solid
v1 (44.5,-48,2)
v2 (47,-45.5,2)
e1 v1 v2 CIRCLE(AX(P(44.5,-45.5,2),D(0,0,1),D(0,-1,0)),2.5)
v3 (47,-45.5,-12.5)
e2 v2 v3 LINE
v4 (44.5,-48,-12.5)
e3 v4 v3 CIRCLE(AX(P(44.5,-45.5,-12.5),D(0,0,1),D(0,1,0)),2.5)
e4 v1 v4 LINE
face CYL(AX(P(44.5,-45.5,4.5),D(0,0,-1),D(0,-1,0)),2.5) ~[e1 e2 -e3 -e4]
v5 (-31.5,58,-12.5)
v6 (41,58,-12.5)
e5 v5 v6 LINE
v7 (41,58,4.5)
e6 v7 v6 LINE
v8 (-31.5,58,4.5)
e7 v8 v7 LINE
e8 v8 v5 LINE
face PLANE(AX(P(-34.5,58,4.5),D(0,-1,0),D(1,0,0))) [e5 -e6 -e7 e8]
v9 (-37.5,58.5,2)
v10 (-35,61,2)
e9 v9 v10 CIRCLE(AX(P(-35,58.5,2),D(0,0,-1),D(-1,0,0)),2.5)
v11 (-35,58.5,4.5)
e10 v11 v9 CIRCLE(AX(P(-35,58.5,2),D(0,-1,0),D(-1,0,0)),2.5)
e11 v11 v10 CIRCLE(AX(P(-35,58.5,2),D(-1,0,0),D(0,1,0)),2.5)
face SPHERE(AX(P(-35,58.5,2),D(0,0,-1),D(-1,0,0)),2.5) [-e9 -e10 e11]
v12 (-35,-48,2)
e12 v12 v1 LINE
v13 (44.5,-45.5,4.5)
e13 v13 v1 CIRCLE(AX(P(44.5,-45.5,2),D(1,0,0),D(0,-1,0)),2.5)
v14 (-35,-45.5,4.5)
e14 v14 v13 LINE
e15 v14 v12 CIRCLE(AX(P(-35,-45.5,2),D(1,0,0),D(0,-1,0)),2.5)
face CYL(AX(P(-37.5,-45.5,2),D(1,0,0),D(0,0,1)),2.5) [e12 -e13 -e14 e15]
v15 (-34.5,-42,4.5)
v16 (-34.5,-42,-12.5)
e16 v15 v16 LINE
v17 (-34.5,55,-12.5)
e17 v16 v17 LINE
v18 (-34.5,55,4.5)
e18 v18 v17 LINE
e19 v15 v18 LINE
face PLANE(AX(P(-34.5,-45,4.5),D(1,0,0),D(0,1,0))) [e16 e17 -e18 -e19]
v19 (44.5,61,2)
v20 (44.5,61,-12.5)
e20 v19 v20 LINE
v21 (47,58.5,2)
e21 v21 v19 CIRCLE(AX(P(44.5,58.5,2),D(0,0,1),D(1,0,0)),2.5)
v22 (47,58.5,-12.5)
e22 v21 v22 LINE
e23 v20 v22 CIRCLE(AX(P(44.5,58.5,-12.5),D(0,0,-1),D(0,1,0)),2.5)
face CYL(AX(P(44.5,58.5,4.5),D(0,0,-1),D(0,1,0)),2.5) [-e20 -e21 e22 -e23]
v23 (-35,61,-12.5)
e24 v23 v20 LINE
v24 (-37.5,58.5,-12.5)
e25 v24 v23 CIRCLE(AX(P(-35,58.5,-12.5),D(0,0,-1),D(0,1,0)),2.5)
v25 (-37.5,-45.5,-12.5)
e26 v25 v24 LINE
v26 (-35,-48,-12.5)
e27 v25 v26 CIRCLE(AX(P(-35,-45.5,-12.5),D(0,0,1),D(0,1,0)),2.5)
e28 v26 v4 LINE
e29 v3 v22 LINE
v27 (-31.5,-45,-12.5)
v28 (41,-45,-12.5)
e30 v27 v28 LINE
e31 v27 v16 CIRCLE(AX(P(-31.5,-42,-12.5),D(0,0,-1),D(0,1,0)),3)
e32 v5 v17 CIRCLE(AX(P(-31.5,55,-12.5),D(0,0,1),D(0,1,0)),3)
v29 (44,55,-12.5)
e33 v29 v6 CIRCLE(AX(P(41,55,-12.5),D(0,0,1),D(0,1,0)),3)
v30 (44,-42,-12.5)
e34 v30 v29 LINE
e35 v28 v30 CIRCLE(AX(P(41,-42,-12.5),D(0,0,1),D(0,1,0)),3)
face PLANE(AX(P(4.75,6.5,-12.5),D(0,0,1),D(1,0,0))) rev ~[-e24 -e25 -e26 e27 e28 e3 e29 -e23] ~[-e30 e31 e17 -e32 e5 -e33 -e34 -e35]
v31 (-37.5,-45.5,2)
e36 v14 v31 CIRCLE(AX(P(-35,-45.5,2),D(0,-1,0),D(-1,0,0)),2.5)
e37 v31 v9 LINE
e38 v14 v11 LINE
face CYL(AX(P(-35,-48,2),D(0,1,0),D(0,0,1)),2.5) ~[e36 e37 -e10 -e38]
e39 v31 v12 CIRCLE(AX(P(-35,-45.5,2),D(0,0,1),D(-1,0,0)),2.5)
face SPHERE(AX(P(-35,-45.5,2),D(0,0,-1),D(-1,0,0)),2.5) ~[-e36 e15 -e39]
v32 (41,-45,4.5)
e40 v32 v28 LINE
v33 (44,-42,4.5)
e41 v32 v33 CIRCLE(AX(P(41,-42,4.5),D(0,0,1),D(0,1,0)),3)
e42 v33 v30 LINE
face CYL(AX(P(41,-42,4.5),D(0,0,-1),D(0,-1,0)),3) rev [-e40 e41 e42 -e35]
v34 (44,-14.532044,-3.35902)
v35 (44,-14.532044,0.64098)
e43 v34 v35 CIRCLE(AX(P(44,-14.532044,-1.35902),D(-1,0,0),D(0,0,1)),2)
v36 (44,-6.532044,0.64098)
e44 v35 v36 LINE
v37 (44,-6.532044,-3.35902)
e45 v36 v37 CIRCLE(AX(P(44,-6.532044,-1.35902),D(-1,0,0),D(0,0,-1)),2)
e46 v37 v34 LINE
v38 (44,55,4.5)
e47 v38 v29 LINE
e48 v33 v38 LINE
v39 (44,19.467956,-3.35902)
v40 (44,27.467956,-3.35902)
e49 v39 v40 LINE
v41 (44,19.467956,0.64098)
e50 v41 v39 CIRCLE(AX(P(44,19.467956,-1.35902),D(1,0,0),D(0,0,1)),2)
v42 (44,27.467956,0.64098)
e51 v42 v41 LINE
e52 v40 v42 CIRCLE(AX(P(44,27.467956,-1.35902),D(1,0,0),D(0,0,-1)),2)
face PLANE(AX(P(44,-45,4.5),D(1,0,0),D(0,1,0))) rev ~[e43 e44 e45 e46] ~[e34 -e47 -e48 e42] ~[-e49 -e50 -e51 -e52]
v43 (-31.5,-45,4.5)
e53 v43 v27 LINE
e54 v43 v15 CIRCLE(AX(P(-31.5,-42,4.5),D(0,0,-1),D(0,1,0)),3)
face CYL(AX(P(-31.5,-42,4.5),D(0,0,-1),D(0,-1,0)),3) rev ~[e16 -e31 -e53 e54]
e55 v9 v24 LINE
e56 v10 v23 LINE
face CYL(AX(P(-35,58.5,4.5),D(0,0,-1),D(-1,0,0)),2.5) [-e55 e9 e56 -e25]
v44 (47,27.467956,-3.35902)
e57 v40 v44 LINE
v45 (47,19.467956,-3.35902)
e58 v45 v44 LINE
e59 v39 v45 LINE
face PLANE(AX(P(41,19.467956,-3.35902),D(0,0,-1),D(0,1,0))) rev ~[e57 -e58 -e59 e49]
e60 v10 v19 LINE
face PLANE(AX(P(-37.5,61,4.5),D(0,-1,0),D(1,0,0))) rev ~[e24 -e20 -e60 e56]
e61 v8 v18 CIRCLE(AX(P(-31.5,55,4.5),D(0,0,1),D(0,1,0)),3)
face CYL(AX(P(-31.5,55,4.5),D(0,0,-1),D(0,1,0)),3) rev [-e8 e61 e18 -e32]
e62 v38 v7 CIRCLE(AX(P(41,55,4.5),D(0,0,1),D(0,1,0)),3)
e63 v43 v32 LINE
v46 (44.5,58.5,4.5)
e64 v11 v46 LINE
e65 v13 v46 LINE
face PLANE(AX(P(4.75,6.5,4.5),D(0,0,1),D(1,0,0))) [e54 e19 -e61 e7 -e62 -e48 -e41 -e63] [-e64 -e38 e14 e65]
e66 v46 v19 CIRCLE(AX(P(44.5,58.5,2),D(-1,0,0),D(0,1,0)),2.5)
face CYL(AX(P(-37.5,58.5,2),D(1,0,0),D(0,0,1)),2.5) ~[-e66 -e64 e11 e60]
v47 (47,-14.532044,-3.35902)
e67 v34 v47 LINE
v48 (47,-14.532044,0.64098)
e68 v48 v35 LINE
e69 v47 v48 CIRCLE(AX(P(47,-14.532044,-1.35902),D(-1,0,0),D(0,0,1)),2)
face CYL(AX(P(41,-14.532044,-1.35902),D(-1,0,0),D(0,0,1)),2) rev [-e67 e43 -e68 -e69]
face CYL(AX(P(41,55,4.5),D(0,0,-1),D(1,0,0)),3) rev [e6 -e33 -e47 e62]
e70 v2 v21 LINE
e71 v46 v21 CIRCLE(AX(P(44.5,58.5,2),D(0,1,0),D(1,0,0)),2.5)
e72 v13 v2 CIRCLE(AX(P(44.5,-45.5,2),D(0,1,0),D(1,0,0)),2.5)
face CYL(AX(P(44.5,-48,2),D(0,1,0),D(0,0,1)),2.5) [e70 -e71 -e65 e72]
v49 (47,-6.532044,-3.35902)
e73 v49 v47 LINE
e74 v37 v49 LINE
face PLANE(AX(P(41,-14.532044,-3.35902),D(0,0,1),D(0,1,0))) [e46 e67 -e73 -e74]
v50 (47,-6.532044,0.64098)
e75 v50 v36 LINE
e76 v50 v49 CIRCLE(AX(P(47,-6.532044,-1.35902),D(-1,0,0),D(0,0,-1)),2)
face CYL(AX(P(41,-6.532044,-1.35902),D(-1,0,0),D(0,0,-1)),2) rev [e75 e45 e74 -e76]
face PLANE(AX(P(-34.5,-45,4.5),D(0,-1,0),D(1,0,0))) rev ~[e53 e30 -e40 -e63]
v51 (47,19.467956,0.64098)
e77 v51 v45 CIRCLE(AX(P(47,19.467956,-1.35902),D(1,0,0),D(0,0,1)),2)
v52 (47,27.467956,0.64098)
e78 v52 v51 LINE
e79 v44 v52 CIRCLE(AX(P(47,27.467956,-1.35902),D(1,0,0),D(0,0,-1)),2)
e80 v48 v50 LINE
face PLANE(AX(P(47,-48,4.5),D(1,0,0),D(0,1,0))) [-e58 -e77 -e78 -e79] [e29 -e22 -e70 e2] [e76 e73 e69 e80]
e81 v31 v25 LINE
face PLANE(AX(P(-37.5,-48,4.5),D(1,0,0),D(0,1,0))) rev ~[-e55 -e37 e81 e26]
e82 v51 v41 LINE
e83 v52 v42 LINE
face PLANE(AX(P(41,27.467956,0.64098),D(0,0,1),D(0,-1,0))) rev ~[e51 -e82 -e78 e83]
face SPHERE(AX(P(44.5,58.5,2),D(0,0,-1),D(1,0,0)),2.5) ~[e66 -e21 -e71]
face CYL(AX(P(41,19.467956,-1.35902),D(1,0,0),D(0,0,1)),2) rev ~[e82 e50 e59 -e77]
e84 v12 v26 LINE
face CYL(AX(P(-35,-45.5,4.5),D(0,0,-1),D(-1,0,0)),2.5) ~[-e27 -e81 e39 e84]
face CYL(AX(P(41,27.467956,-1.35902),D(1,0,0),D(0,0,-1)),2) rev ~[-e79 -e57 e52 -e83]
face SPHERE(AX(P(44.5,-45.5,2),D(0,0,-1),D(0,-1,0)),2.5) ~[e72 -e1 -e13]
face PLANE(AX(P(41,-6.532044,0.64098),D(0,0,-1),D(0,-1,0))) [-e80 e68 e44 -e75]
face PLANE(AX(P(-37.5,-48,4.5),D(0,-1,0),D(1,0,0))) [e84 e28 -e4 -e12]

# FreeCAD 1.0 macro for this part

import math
import FreeCAD as App
import Part
import Sketcher
Q = App.Units.Quantity


def edges_at(feature, points):
    """Names of the edges that pass closest to the given points."""
    edges = feature.Shape.Edges
    near = lambda p: min(range(len(edges)), key=lambda i: edges[i].distToShape(Part.Vertex(*p))[0])
    return sorted({f"Edge{near(p) + 1}" for p in points})

doc = App.newDocument("Part")
body = doc.addObject("PartDesign::Body", "Body")

sketch1 = body.newObject("Sketcher::SketchObject", "Sketch")
sketch1.AttachmentSupport = (doc.getObject("XY_Plane"), [""])
sketch1.MapMode = "FlatFace"
sketch1.addGeometry(Part.LineSegment(App.Vector(-38, 61, 0), App.Vector(-38, -48, 0)), False)
sketch1.addGeometry(Part.LineSegment(App.Vector(-38, -48, 0), App.Vector(47, -48, 0)), False)
sketch1.addGeometry(Part.LineSegment(App.Vector(47, -48, 0), App.Vector(47, 61, 0)), False)
sketch1.addGeometry(Part.LineSegment(App.Vector(47, 61, 0), App.Vector(-38, 61, 0)), False)
sketch1.addGeometry(Part.LineSegment(App.Vector(44, -45, 0), App.Vector(-34, -45, 0)), False)
sketch1.addGeometry(Part.LineSegment(App.Vector(-34, -45, 0), App.Vector(-34, 58, 0)), False)
sketch1.addGeometry(Part.LineSegment(App.Vector(-34, 58, 0), App.Vector(44, 58, 0)), False)
sketch1.addGeometry(Part.LineSegment(App.Vector(44, 58, 0), App.Vector(44, -45, 0)), False)
sketch1.addConstraint(Sketcher.Constraint("Coincident", 0, 2, 1, 1))
sketch1.addConstraint(Sketcher.Constraint("Coincident", 1, 2, 2, 1))
sketch1.addConstraint(Sketcher.Constraint("Coincident", 2, 2, 3, 1))
sketch1.addConstraint(Sketcher.Constraint("Coincident", 3, 2, 0, 1))
sketch1.addConstraint(Sketcher.Constraint("Coincident", 4, 2, 5, 1))
sketch1.addConstraint(Sketcher.Constraint("Coincident", 5, 2, 6, 1))
sketch1.addConstraint(Sketcher.Constraint("Coincident", 6, 2, 7, 1))
sketch1.addConstraint(Sketcher.Constraint("Coincident", 7, 2, 4, 1))
sketch1.addConstraint(Sketcher.Constraint("Vertical", 0))
sketch1.addConstraint(Sketcher.Constraint("Horizontal", 1))
sketch1.addConstraint(Sketcher.Constraint("Vertical", 2))
sketch1.addConstraint(Sketcher.Constraint("Horizontal", 3))
sketch1.addConstraint(Sketcher.Constraint("Horizontal", 4))
sketch1.addConstraint(Sketcher.Constraint("Vertical", 5))
sketch1.addConstraint(Sketcher.Constraint("Horizontal", 6))
sketch1.addConstraint(Sketcher.Constraint("Vertical", 7))
sketch1.addConstraint(Sketcher.Constraint("DistanceY", 0, 2, 0, 1, Q("109 mm")))
sketch1.addConstraint(Sketcher.Constraint("DistanceY", 5, 1, 5, 2, Q("103 mm")))
sketch1.addConstraint(Sketcher.Constraint("DistanceX", 1, 1, 1, 2, Q("84.5 mm")))
sketch1.addConstraint(Sketcher.Constraint("DistanceX", 4, 2, 4, 1, Q("78.5 mm")))
sketch1.addConstraint(Sketcher.Constraint("DistanceY", 0, 2, -1, 1, Q("48 mm")))
sketch1.addConstraint(Sketcher.Constraint("DistanceX", -1, 1, 1, 2, Q("47 mm")))
sketch1.addConstraint(Sketcher.Constraint("DistanceY", 4, 2, -1, 1, Q("45 mm")))
sketch1.addConstraint(Sketcher.Constraint("DistanceX", -1, 1, 6, 2, Q("44 mm")))
pad1 = body.newObject("PartDesign::Pad", "Pad")
pad1.Profile = sketch1
pad1.Length = 17
pad1.Reversed = True
doc.recompute()

fillet = body.newObject("PartDesign::Fillet", "Fillet")
fillet.Base = (pad1, edges_at(pad1, [
    (-34.5, 58, -8.5),
    (-34.5, -45, -8.5),
    (44, 58, -8.5),
    (44, -45, -8.5),
]))
fillet.Radius = 3
doc.recompute()

fillet2 = body.newObject("PartDesign::Fillet", "Fillet001")
fillet2.Base = (fillet, edges_at(fillet, [
    (47, 61, -8.5),
    (-37.5, 61, -8.5),
    (47, -48, -8.5),
    (-37.5, -48, -8.5),
    (-37.5, 6.5, 0),
    (4.75, -48, 0),
    (47, 6.5, 0),
    (4.75, 61, 0),
]))
fillet2.Radius = 2.5

sketch2 = body.newObject("Sketcher::SketchObject", "Sketch001")
sketch2.AttachmentSupport = (doc.getObject("YZ_Plane"), [""])
sketch2.MapMode = "FlatFace"
sketch2.AttachmentOffset = App.Placement(App.Vector(0, 0, 41), App.Rotation())
sketch2.addGeometry(Part.ArcOfCircle(Part.Circle(App.Vector(-14.5, -5.9, 0), App.Vector(0, 0, 1), 2), math.radians(90), math.radians(270)), False)
sketch2.addGeometry(Part.LineSegment(App.Vector(-14.5, -7.9, 0), App.Vector(-6.5, -7.9, 0)), False)
sketch2.addGeometry(Part.ArcOfCircle(Part.Circle(App.Vector(-6.5, -5.9, 0), App.Vector(0, 0, 1), 2), math.radians(-90), math.radians(90)), False)
sketch2.addGeometry(Part.LineSegment(App.Vector(-6.5, -3.9, 0), App.Vector(-14.5, -3.9, 0)), False)
sketch2.addGeometry(Part.ArcOfCircle(Part.Circle(App.Vector(19.5, -5.9, 0), App.Vector(0, 0, 1), 2), math.radians(90), math.radians(270)), False)
sketch2.addGeometry(Part.LineSegment(App.Vector(19.5, -7.9, 0), App.Vector(27.5, -7.9, 0)), False)
sketch2.addGeometry(Part.ArcOfCircle(Part.Circle(App.Vector(27.5, -5.9, 0), App.Vector(0, 0, 1), 2), math.radians(-90), math.radians(90)), False)
sketch2.addGeometry(Part.LineSegment(App.Vector(27.5, -3.9, 0), App.Vector(19.5, -3.9, 0)), False)
sketch2.addConstraint(Sketcher.Constraint("Tangent", 0, 2, 1, 1))
sketch2.addConstraint(Sketcher.Constraint("Tangent", 1, 2, 2, 1))
sketch2.addConstraint(Sketcher.Constraint("Tangent", 2, 2, 3, 1))
sketch2.addConstraint(Sketcher.Constraint("Tangent", 3, 2, 0, 1))
sketch2.addConstraint(Sketcher.Constraint("Tangent", 4, 2, 5, 1))
sketch2.addConstraint(Sketcher.Constraint("Tangent", 5, 2, 6, 1))
sketch2.addConstraint(Sketcher.Constraint("Tangent", 6, 2, 7, 1))
sketch2.addConstraint(Sketcher.Constraint("Tangent", 7, 2, 4, 1))
sketch2.addConstraint(Sketcher.Constraint("Horizontal", 1))
sketch2.addConstraint(Sketcher.Constraint("Horizontal", 3))
sketch2.addConstraint(Sketcher.Constraint("Horizontal", 5))
sketch2.addConstraint(Sketcher.Constraint("Horizontal", 7))
sketch2.addConstraint(Sketcher.Constraint("Equal", 2, 4))
sketch2.addConstraint(Sketcher.Constraint("Horizontal", 2, 3, 4, 3))
sketch2.addConstraint(Sketcher.Constraint("Equal", 3, 5))
sketch2.addConstraint(Sketcher.Constraint("Radius", 0, Q("2 mm")))
sketch2.addConstraint(Sketcher.Constraint("DistanceX", 1, 1, 1, 2, Q("8 mm")))
sketch2.addConstraint(Sketcher.Constraint("DistanceX", 2, 3, 4, 3, Q("26 mm")))
sketch2.addConstraint(Sketcher.Constraint("DistanceY", 0, 3, -1, 1, Q("5.85902 mm")))
sketch2.addConstraint(Sketcher.Constraint("DistanceX", 0, 3, -1, 1, Q("14.532044 mm")))
pocket1 = body.newObject("PartDesign::Pocket", "Pocket")
pocket1.Profile = sketch2
pocket1.Length = 19
pocket1.Midplane = True
body2 = doc.addObject("PartDesign::Body", "Body001")
doc.recompute()

body.Placement = App.Placement(App.Vector(0, 0, 4.5), App.Rotation(App.Vector(0, 0, 1), 0))
boolean = body2.newObject("PartDesign::Boolean", "Boolean")
boolean.Type = "Fuse"
boolean.addObjects([body])

doc.recompute()
